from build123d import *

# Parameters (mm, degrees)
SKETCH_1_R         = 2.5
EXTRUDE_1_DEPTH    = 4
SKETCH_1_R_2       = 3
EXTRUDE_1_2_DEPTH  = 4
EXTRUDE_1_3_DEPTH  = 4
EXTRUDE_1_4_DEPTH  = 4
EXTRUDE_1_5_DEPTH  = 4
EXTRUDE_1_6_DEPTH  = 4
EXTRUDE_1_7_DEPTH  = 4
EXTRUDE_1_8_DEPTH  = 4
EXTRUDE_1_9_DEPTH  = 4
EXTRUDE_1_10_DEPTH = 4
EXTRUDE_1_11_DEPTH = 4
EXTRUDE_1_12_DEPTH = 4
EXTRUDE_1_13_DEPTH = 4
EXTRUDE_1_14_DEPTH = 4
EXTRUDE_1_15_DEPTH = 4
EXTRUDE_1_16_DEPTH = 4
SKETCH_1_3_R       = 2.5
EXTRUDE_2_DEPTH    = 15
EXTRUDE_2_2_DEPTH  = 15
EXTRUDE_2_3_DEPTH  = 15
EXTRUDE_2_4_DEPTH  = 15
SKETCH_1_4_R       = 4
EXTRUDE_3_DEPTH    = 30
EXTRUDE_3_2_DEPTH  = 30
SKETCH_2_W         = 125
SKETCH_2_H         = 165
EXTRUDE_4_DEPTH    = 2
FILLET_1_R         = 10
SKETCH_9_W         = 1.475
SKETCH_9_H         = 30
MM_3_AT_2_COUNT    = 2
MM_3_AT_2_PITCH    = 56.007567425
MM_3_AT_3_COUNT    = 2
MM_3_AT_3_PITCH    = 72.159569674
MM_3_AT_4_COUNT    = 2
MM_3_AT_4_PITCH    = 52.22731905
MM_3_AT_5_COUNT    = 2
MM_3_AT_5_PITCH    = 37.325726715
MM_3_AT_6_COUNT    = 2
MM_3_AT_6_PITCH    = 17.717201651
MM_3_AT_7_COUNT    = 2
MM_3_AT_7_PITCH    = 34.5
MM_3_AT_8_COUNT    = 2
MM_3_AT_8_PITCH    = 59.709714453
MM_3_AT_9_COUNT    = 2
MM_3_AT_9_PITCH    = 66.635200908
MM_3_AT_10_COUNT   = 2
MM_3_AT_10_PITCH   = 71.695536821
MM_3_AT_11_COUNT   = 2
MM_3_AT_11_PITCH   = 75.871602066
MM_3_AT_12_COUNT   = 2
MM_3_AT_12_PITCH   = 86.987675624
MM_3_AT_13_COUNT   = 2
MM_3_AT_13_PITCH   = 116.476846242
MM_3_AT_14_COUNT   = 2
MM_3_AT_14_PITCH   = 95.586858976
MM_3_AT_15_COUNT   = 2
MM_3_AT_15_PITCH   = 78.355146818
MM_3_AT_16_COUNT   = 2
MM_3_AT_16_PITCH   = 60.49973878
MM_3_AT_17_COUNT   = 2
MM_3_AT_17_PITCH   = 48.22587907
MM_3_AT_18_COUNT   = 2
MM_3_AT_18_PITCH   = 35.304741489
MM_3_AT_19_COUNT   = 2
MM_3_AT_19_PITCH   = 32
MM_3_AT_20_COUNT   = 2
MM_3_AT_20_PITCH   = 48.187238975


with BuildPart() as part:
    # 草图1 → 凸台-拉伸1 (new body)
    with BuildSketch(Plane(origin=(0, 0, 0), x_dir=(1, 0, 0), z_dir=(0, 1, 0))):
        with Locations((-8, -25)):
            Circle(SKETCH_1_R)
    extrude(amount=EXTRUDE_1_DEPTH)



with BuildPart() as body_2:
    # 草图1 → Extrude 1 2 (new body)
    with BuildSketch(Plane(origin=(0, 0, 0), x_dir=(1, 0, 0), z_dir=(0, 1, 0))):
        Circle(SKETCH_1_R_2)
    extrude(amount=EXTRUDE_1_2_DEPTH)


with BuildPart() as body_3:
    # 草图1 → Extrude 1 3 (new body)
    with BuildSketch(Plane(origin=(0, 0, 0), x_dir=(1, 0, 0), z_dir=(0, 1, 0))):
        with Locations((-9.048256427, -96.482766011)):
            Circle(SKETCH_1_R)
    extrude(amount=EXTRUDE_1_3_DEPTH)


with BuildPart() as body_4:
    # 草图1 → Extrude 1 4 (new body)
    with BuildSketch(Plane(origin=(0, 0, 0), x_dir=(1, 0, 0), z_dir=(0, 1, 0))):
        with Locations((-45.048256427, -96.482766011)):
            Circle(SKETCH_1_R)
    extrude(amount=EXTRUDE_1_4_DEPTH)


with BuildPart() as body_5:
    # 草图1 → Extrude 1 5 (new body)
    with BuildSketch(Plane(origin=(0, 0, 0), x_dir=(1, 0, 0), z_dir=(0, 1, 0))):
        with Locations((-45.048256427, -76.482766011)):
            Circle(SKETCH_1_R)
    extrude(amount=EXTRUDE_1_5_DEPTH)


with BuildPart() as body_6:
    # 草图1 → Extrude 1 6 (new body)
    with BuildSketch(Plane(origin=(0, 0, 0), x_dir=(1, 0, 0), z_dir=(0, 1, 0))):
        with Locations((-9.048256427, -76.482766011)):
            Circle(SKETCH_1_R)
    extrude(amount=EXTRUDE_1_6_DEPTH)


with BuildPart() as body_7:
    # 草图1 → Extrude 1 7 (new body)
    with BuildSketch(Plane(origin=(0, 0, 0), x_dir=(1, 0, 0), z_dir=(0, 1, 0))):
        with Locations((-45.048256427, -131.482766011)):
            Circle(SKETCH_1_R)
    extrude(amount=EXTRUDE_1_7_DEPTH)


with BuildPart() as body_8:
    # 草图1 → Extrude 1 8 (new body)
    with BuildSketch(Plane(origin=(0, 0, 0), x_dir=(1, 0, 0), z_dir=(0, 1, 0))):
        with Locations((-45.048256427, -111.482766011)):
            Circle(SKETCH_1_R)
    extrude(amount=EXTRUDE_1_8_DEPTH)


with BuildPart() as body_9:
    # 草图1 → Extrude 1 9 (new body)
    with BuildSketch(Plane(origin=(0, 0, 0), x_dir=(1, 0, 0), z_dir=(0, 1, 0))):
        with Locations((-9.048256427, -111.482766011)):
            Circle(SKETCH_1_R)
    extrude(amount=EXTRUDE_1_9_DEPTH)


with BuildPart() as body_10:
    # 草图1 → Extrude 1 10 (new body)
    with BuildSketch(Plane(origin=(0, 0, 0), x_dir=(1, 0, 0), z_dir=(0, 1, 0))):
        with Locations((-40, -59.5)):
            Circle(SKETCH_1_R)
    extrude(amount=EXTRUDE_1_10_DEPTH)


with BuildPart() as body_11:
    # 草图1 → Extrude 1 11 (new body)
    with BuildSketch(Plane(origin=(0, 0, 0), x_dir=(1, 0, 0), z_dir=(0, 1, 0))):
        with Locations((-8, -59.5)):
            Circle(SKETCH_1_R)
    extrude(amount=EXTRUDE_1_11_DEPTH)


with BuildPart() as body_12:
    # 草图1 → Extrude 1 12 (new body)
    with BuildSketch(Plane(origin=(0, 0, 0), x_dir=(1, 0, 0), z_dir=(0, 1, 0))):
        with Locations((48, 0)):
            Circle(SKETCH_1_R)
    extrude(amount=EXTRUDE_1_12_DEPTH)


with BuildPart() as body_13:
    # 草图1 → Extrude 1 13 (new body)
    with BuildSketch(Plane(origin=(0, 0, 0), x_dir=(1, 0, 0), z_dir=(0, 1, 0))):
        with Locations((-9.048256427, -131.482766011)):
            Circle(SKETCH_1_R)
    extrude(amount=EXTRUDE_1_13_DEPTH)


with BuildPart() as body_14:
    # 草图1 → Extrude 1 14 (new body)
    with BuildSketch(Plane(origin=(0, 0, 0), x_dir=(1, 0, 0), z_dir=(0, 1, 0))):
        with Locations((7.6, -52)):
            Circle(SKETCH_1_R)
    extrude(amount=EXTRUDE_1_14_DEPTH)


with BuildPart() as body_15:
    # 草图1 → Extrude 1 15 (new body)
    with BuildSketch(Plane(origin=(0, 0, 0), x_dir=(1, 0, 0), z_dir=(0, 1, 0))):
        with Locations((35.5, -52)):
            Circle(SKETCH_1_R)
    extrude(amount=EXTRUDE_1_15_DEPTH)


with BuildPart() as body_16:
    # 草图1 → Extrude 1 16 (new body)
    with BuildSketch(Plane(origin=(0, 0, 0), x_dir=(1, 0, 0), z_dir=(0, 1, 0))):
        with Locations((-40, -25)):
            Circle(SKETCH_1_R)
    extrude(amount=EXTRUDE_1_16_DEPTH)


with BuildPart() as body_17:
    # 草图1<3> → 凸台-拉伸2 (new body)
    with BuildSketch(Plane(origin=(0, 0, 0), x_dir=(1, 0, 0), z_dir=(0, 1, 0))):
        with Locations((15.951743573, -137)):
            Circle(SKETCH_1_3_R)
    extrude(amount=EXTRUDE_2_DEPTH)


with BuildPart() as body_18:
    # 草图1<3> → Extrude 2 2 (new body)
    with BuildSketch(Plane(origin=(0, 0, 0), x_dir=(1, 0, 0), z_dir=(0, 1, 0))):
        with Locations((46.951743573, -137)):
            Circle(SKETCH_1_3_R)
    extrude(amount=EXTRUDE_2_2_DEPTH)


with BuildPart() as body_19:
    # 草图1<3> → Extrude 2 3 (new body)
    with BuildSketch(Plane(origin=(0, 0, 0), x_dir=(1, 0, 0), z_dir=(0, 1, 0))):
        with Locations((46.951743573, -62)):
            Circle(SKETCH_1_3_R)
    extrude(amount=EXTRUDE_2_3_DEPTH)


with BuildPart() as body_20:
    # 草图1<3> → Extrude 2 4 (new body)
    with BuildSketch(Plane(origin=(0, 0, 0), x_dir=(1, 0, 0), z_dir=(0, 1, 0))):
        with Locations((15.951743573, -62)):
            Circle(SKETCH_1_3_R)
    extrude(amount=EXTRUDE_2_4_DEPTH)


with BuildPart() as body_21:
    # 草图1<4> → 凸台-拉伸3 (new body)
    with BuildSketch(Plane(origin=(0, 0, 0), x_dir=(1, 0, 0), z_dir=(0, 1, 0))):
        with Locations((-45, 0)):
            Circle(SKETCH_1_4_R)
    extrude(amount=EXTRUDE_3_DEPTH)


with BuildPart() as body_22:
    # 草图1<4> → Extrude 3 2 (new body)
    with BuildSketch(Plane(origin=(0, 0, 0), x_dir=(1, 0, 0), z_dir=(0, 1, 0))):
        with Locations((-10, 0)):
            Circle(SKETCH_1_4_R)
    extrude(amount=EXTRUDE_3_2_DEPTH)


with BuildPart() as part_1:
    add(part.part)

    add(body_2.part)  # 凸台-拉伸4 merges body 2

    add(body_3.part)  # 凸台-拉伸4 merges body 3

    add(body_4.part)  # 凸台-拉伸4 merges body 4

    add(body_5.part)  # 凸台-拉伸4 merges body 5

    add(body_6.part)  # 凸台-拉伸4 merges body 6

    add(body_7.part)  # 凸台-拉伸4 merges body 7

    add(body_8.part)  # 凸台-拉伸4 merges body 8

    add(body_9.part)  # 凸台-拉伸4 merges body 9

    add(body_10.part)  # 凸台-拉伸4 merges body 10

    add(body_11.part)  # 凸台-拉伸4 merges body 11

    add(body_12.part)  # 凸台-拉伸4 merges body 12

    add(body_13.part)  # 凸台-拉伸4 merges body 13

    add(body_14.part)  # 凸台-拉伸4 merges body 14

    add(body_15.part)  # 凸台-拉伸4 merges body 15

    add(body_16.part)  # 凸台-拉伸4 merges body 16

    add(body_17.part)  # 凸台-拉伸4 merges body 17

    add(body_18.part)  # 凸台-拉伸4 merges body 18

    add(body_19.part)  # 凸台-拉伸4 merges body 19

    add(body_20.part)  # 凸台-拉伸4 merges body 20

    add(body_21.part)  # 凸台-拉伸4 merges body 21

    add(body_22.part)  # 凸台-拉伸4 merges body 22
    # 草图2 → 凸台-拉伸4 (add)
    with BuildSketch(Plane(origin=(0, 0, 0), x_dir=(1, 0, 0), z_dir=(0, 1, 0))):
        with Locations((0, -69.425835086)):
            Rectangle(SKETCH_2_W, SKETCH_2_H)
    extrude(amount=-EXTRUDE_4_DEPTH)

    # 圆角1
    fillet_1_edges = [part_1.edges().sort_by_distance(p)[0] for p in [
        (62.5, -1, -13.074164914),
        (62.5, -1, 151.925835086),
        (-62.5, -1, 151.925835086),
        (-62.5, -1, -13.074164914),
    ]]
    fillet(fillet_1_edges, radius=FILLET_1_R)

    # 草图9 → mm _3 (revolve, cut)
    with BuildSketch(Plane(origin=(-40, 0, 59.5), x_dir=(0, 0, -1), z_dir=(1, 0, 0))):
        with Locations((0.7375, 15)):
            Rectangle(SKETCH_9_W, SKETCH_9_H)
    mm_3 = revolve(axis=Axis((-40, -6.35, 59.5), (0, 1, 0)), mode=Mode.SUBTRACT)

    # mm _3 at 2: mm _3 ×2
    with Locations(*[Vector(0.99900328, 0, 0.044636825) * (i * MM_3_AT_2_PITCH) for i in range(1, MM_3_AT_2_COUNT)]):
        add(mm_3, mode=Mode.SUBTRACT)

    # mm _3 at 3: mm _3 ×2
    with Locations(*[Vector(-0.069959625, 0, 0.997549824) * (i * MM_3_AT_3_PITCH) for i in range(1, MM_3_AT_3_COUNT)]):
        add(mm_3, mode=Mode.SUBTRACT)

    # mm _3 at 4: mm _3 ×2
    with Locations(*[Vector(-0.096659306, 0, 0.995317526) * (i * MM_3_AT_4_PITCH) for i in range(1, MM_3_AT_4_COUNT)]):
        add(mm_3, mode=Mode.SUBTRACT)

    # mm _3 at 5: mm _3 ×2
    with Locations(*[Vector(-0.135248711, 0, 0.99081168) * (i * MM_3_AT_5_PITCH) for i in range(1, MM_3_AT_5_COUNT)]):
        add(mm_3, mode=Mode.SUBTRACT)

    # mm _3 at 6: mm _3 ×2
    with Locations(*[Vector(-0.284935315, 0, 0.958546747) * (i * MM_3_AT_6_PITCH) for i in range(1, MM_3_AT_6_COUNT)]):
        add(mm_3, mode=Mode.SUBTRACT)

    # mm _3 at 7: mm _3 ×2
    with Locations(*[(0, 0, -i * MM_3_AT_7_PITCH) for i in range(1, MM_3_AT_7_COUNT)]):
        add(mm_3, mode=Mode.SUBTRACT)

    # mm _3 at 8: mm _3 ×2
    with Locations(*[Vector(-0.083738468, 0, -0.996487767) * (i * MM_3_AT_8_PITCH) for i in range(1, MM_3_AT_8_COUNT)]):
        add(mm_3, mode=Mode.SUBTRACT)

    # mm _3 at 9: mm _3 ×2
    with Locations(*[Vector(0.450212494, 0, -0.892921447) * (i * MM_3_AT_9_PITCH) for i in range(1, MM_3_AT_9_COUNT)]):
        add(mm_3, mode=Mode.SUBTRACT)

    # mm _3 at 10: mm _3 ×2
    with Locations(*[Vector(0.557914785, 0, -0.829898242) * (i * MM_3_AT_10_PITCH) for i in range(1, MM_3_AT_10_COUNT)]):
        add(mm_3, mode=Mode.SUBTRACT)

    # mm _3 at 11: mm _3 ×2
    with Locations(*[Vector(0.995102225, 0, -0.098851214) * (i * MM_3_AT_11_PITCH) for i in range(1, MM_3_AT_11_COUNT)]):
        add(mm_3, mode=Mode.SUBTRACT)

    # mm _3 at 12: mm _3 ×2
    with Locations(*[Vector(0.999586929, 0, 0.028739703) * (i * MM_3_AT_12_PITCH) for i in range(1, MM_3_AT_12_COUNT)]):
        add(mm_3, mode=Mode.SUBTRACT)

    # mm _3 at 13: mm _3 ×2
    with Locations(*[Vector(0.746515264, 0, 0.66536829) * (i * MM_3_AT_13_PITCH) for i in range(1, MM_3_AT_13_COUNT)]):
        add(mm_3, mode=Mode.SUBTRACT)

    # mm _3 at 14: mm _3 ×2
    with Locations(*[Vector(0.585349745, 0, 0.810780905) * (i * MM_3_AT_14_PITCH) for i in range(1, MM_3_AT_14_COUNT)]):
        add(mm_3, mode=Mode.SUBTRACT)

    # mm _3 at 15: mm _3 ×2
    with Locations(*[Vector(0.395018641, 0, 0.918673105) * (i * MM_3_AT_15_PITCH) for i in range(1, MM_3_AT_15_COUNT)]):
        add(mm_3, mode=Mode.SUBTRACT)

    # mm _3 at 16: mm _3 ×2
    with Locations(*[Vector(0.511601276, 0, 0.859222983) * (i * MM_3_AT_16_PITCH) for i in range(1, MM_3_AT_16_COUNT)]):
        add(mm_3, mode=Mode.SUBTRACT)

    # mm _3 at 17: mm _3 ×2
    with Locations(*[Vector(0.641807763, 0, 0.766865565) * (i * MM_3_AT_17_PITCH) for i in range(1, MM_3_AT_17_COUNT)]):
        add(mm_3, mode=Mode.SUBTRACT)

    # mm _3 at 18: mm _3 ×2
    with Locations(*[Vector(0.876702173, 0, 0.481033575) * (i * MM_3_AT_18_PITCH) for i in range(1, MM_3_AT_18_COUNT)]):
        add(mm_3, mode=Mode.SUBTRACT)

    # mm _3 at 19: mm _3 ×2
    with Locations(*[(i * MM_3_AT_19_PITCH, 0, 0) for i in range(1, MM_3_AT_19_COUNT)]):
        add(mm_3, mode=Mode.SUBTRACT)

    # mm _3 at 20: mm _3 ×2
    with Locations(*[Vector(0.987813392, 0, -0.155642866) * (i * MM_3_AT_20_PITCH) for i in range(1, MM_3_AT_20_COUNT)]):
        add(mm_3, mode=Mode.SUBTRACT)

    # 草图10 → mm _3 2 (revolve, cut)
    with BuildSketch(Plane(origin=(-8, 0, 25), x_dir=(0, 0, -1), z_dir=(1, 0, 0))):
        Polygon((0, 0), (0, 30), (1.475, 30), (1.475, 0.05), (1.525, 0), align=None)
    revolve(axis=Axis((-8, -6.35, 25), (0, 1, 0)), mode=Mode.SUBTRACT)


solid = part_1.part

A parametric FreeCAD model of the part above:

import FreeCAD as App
import Part
import Sketcher
Q = App.Units.Quantity


def edges_at(feature, points):
    """Names of the edges that pass closest to the given points."""
    edges = feature.Shape.Edges
    near = lambda p: min(range(len(edges)), key=lambda i: edges[i].distToShape(Part.Vertex(*p))[0])
    return sorted({f"Edge{near(p) + 1}" for p in points})

doc = App.newDocument("Part")
body = doc.addObject("PartDesign::Body", "Body")

# Sketch on XZ plane
sketch1 = body.newObject("Sketcher::SketchObject", "Sketch")
sketch1.AttachmentSupport = (doc.getObject("XZ_Plane"), [""])
sketch1.MapMode = "FlatFace"
sketch1.addGeometry(Part.Circle(App.Vector(-8, 25, 0), App.Vector(0, 0, 1), 2.5), False)
sketch1.addConstraint([
    Sketcher.Constraint("Diameter", 0, 5.0),
    Sketcher.Constraint("DistanceX", 0, 3, -1, 1, 8.0),
    Sketcher.Constraint("DistanceY", -1, 1, 0, 3, 25.0),
])
pad1 = body.newObject("PartDesign::Pad", "Pad")
pad1.Profile = sketch1
pad1.Length = 4
pad1.Reversed = True
body2 = doc.addObject("PartDesign::Body", "Body001")

# Sketch on XZ plane
sketch2 = body2.newObject("Sketcher::SketchObject", "Sketch001")
sketch2.AttachmentSupport = (doc.getObject("XZ_Plane001"), [""])
sketch2.MapMode = "FlatFace"
sketch2.addGeometry(Part.Circle(App.Vector(0, 0, 0), App.Vector(0, 0, 1), 3), False)
sketch2.addConstraint([
    Sketcher.Constraint("Coincident", 0, 3, -1, 1),
    Sketcher.Constraint("Diameter", 0, 6.0),
])
pad2 = body2.newObject("PartDesign::Pad", "Pad001")
pad2.Profile = sketch2
pad2.Length = 4
pad2.Reversed = True
body3 = doc.addObject("PartDesign::Body", "Body002")

# Sketch on XZ plane
sketch3 = body3.newObject("Sketcher::SketchObject", "Sketch002")
sketch3.AttachmentSupport = (doc.getObject("XZ_Plane002"), [""])
sketch3.MapMode = "FlatFace"
sketch3.addGeometry(Part.Circle(App.Vector(-9.048256, 96.482766, 0), App.Vector(0, 0, 1), 2.5), False)
sketch3.addConstraint([
    Sketcher.Constraint("Diameter", 0, 5.0),
    Sketcher.Constraint("DistanceX", 0, 3, -1, 1, 9.048256),
    Sketcher.Constraint("DistanceY", -1, 1, 0, 3, 96.482766),
])
pad3 = body3.newObject("PartDesign::Pad", "Pad002")
pad3.Profile = sketch3
pad3.Length = 4
pad3.Reversed = True
body4 = doc.addObject("PartDesign::Body", "Body003")

# Sketch on XZ plane
sketch4 = body4.newObject("Sketcher::SketchObject", "Sketch003")
sketch4.AttachmentSupport = (doc.getObject("XZ_Plane003"), [""])
sketch4.MapMode = "FlatFace"
sketch4.addGeometry(Part.Circle(App.Vector(-45.048256, 96.482766, 0), App.Vector(0, 0, 1), 2.5), False)
sketch4.addConstraint([
    Sketcher.Constraint("Diameter", 0, 5.0),
    Sketcher.Constraint("DistanceX", 0, 3, -1, 1, 45.048256),
    Sketcher.Constraint("DistanceY", -1, 1, 0, 3, 96.482766),
])
pad4 = body4.newObject("PartDesign::Pad", "Pad003")
pad4.Profile = sketch4
pad4.Length = 4
pad4.Reversed = True
body5 = doc.addObject("PartDesign::Body", "Body004")

# Sketch on XZ plane
sketch5 = body5.newObject("Sketcher::SketchObject", "Sketch004")
sketch5.AttachmentSupport = (doc.getObject("XZ_Plane004"), [""])
sketch5.MapMode = "FlatFace"
sketch5.addGeometry(Part.Circle(App.Vector(-45.048256, 76.482766, 0), App.Vector(0, 0, 1), 2.5), False)
sketch5.addConstraint([
    Sketcher.Constraint("Diameter", 0, 5.0),
    Sketcher.Constraint("DistanceX", 0, 3, -1, 1, 45.048256),
    Sketcher.Constraint("DistanceY", -1, 1, 0, 3, 76.482766),
])
pad5 = body5.newObject("PartDesign::Pad", "Pad004")
pad5.Profile = sketch5
pad5.Length = 4
pad5.Reversed = True
body6 = doc.addObject("PartDesign::Body", "Body005")

# Sketch on XZ plane
sketch6 = body6.newObject("Sketcher::SketchObject", "Sketch005")
sketch6.AttachmentSupport = (doc.getObject("XZ_Plane005"), [""])
sketch6.MapMode = "FlatFace"
sketch6.addGeometry(Part.Circle(App.Vector(-9.048256, 76.482766, 0), App.Vector(0, 0, 1), 2.5), False)
sketch6.addConstraint([
    Sketcher.Constraint("Diameter", 0, 5.0),
    Sketcher.Constraint("DistanceX", 0, 3, -1, 1, 9.048256),
    Sketcher.Constraint("DistanceY", -1, 1, 0, 3, 76.482766),
])
pad6 = body6.newObject("PartDesign::Pad", "Pad005")
pad6.Profile = sketch6
pad6.Length = 4
pad6.Reversed = True
body7 = doc.addObject("PartDesign::Body", "Body006")

# Sketch on XZ plane
sketch7 = body7.newObject("Sketcher::SketchObject", "Sketch006")
sketch7.AttachmentSupport = (doc.getObject("XZ_Plane006"), [""])
sketch7.MapMode = "FlatFace"
sketch7.addGeometry(Part.Circle(App.Vector(-45.048256, 131.482766, 0), App.Vector(0, 0, 1), 2.5), False)
sketch7.addConstraint([
    Sketcher.Constraint("Diameter", 0, 5.0),
    Sketcher.Constraint("DistanceX", 0, 3, -1, 1, 45.048256),
    Sketcher.Constraint("DistanceY", -1, 1, 0, 3, 131.482766),
])
pad7 = body7.newObject("PartDesign::Pad", "Pad006")
pad7.Profile = sketch7
pad7.Length = 4
pad7.Reversed = True
body8 = doc.addObject("PartDesign::Body", "Body007")

# Sketch on XZ plane
sketch8 = body8.newObject("Sketcher::SketchObject", "Sketch007")
sketch8.AttachmentSupport = (doc.getObject("XZ_Plane007"), [""])
sketch8.MapMode = "FlatFace"
sketch8.addGeometry(Part.Circle(App.Vector(-45.048256, 111.482766, 0), App.Vector(0, 0, 1), 2.5), False)
sketch8.addConstraint([
    Sketcher.Constraint("Diameter", 0, 5.0),
    Sketcher.Constraint("DistanceX", 0, 3, -1, 1, 45.048256),
    Sketcher.Constraint("DistanceY", -1, 1, 0, 3, 111.482766),
])
pad8 = body8.newObject("PartDesign::Pad", "Pad007")
pad8.Profile = sketch8
pad8.Length = 4
pad8.Reversed = True
body9 = doc.addObject("PartDesign::Body", "Body008")

# Sketch on XZ plane
sketch9 = body9.newObject("Sketcher::SketchObject", "Sketch008")
sketch9.AttachmentSupport = (doc.getObject("XZ_Plane008"), [""])
sketch9.MapMode = "FlatFace"
sketch9.addGeometry(Part.Circle(App.Vector(-9.048256, 111.482766, 0), App.Vector(0, 0, 1), 2.5), False)
sketch9.addConstraint([
    Sketcher.Constraint("Diameter", 0, 5.0),
    Sketcher.Constraint("DistanceX", 0, 3, -1, 1, 9.048256),
    Sketcher.Constraint("DistanceY", -1, 1, 0, 3, 111.482766),
])
pad9 = body9.newObject("PartDesign::Pad", "Pad008")
pad9.Profile = sketch9
pad9.Length = 4
pad9.Reversed = True
body10 = doc.addObject("PartDesign::Body", "Body009")

# Sketch on XZ plane
sketch10 = body10.newObject("Sketcher::SketchObject", "Sketch009")
sketch10.AttachmentSupport = (doc.getObject("XZ_Plane009"), [""])
sketch10.MapMode = "FlatFace"
sketch10.addGeometry(Part.Circle(App.Vector(-40, 59.5, 0), App.Vector(0, 0, 1), 2.5), False)
sketch10.addConstraint([
    Sketcher.Constraint("Diameter", 0, 5.0),
    Sketcher.Constraint("DistanceX", 0, 3, -1, 1, 40.0),
    Sketcher.Constraint("DistanceY", -1, 1, 0, 3, 59.5),
])
pad10 = body10.newObject("PartDesign::Pad", "Pad009")
pad10.Profile = sketch10
pad10.Length = 4
pad10.Reversed = True
body11 = doc.addObject("PartDesign::Body", "Body010")

# Sketch on XZ plane
sketch11 = body11.newObject("Sketcher::SketchObject", "Sketch010")
sketch11.AttachmentSupport = (doc.getObject("XZ_Plane010"), [""])
sketch11.MapMode = "FlatFace"
sketch11.addGeometry(Part.Circle(App.Vector(-8, 59.5, 0), App.Vector(0, 0, 1), 2.5), False)
sketch11.addConstraint([
    Sketcher.Constraint("Diameter", 0, 5.0),
    Sketcher.Constraint("DistanceX", 0, 3, -1, 1, 8.0),
    Sketcher.Constraint("DistanceY", -1, 1, 0, 3, 59.5),
])
pad11 = body11.newObject("PartDesign::Pad", "Pad010")
pad11.Profile = sketch11
pad11.Length = 4
pad11.Reversed = True
body12 = doc.addObject("PartDesign::Body", "Body011")

# Sketch on XZ plane
sketch12 = body12.newObject("Sketcher::SketchObject", "Sketch011")
sketch12.AttachmentSupport = (doc.getObject("XZ_Plane011"), [""])
sketch12.MapMode = "FlatFace"
sketch12.addGeometry(Part.Circle(App.Vector(48, 0, 0), App.Vector(0, 0, 1), 2.5), False)
sketch12.addConstraint([
    Sketcher.Constraint("PointOnObject", 0, 3, -1),
    Sketcher.Constraint("Diameter", 0, 5.0),
    Sketcher.Constraint("DistanceX", -1, 1, 0, 3, 48.0),
])
pad12 = body12.newObject("PartDesign::Pad", "Pad011")
pad12.Profile = sketch12
pad12.Length = 4
pad12.Reversed = True
body13 = doc.addObject("PartDesign::Body", "Body012")

# Sketch on XZ plane
sketch13 = body13.newObject("Sketcher::SketchObject", "Sketch012")
sketch13.AttachmentSupport = (doc.getObject("XZ_Plane012"), [""])
sketch13.MapMode = "FlatFace"
sketch13.addGeometry(Part.Circle(App.Vector(-9.048256, 131.482766, 0), App.Vector(0, 0, 1), 2.5), False)
sketch13.addConstraint([
    Sketcher.Constraint("Diameter", 0, 5.0),
    Sketcher.Constraint("DistanceX", 0, 3, -1, 1, 9.048256),
    Sketcher.Constraint("DistanceY", -1, 1, 0, 3, 131.482766),
])
pad13 = body13.newObject("PartDesign::Pad", "Pad012")
pad13.Profile = sketch13
pad13.Length = 4
pad13.Reversed = True
body14 = doc.addObject("PartDesign::Body", "Body013")

# Sketch on XZ plane
sketch14 = body14.newObject("Sketcher::SketchObject", "Sketch013")
sketch14.AttachmentSupport = (doc.getObject("XZ_Plane013"), [""])
sketch14.MapMode = "FlatFace"
sketch14.addGeometry(Part.Circle(App.Vector(7.6, 52, 0), App.Vector(0, 0, 1), 2.5), False)
sketch14.addConstraint([
    Sketcher.Constraint("Diameter", 0, 5.0),
    Sketcher.Constraint("DistanceY", -1, 1, 0, 3, 52.0),
    Sketcher.Constraint("DistanceX", -1, 1, 0, 3, 7.6),
])
pad14 = body14.newObject("PartDesign::Pad", "Pad013")
pad14.Profile = sketch14
pad14.Length = 4
pad14.Reversed = True
body15 = doc.addObject("PartDesign::Body", "Body014")

# Sketch on XZ plane
sketch15 = body15.newObject("Sketcher::SketchObject", "Sketch014")
sketch15.AttachmentSupport = (doc.getObject("XZ_Plane014"), [""])
sketch15.MapMode = "FlatFace"
sketch15.addGeometry(Part.Circle(App.Vector(35.5, 52, 0), App.Vector(0, 0, 1), 2.5), False)
sketch15.addConstraint([
    Sketcher.Constraint("Diameter", 0, 5.0),
    Sketcher.Constraint("DistanceY", -1, 1, 0, 3, 52.0),
    Sketcher.Constraint("DistanceX", -1, 1, 0, 3, 35.5),
])
pad15 = body15.newObject("PartDesign::Pad", "Pad014")
pad15.Profile = sketch15
pad15.Length = 4
pad15.Reversed = True
body16 = doc.addObject("PartDesign::Body", "Body015")

# Sketch on XZ plane
sketch16 = body16.newObject("Sketcher::SketchObject", "Sketch015")
sketch16.AttachmentSupport = (doc.getObject("XZ_Plane015"), [""])
sketch16.MapMode = "FlatFace"
sketch16.addGeometry(Part.Circle(App.Vector(-40, 25, 0), App.Vector(0, 0, 1), 2.5), False)
sketch16.addConstraint([
    Sketcher.Constraint("Diameter", 0, 5.0),
    Sketcher.Constraint("DistanceX", 0, 3, -1, 1, 40.0),
    Sketcher.Constraint("DistanceY", -1, 1, 0, 3, 25.0),
])
pad16 = body16.newObject("PartDesign::Pad", "Pad015")
pad16.Profile = sketch16
pad16.Length = 4
pad16.Reversed = True
body17 = doc.addObject("PartDesign::Body", "Body016")

# Sketch on XZ plane
sketch17 = body17.newObject("Sketcher::SketchObject", "Sketch016")
sketch17.AttachmentSupport = (doc.getObject("XZ_Plane016"), [""])
sketch17.MapMode = "FlatFace"
sketch17.addGeometry(Part.Circle(App.Vector(15.951744, 137, 0), App.Vector(0, 0, 1), 2.5), False)
sketch17.addConstraint([
    Sketcher.Constraint("Diameter", 0, 5.0),
    Sketcher.Constraint("DistanceY", -1, 1, 0, 3, 137.0),
    Sketcher.Constraint("DistanceX", -1, 1, 0, 3, 15.951744),
])
pad17 = body17.newObject("PartDesign::Pad", "Pad016")
pad17.Profile = sketch17
pad17.Length = 15
pad17.Reversed = True
body18 = doc.addObject("PartDesign::Body", "Body017")

# Sketch on XZ plane
sketch18 = body18.newObject("Sketcher::SketchObject", "Sketch017")
sketch18.AttachmentSupport = (doc.getObject("XZ_Plane017"), [""])
sketch18.MapMode = "FlatFace"
sketch18.addGeometry(Part.Circle(App.Vector(46.951744, 137, 0), App.Vector(0, 0, 1), 2.5), False)
sketch18.addConstraint([
    Sketcher.Constraint("Diameter", 0, 5.0),
    Sketcher.Constraint("DistanceY", -1, 1, 0, 3, 137.0),
    Sketcher.Constraint("DistanceX", -1, 1, 0, 3, 46.951744),
])
pad18 = body18.newObject("PartDesign::Pad", "Pad017")
pad18.Profile = sketch18
pad18.Length = 15
pad18.Reversed = True
body19 = doc.addObject("PartDesign::Body", "Body018")

# Sketch on XZ plane
sketch19 = body19.newObject("Sketcher::SketchObject", "Sketch018")
sketch19.AttachmentSupport = (doc.getObject("XZ_Plane018"), [""])
sketch19.MapMode = "FlatFace"
sketch19.addGeometry(Part.Circle(App.Vector(46.951744, 62, 0), App.Vector(0, 0, 1), 2.5), False)
sketch19.addConstraint([
    Sketcher.Constraint("Diameter", 0, 5.0),
    Sketcher.Constraint("DistanceY", -1, 1, 0, 3, 62.0),
    Sketcher.Constraint("DistanceX", -1, 1, 0, 3, 46.951744),
])
pad19 = body19.newObject("PartDesign::Pad", "Pad018")
pad19.Profile = sketch19
pad19.Length = 15
pad19.Reversed = True
body20 = doc.addObject("PartDesign::Body", "Body019")

# Sketch on XZ plane
sketch20 = body20.newObject("Sketcher::SketchObject", "Sketch019")
sketch20.AttachmentSupport = (doc.getObject("XZ_Plane019"), [""])
sketch20.MapMode = "FlatFace"
sketch20.addGeometry(Part.Circle(App.Vector(15.951744, 62, 0), App.Vector(0, 0, 1), 2.5), False)
sketch20.addConstraint([
    Sketcher.Constraint("Diameter", 0, 5.0),
    Sketcher.Constraint("DistanceY", -1, 1, 0, 3, 62.0),
    Sketcher.Constraint("DistanceX", -1, 1, 0, 3, 15.951744),
])
pad20 = body20.newObject("PartDesign::Pad", "Pad019")
pad20.Profile = sketch20
pad20.Length = 15
pad20.Reversed = True
body21 = doc.addObject("PartDesign::Body", "Body020")

# Sketch on XZ plane
sketch21 = body21.newObject("Sketcher::SketchObject", "Sketch020")
sketch21.AttachmentSupport = (doc.getObject("XZ_Plane020"), [""])
sketch21.MapMode = "FlatFace"
sketch21.addGeometry(Part.Circle(App.Vector(-45, 0, 0), App.Vector(0, 0, 1), 4), False)
sketch21.addConstraint([
    Sketcher.Constraint("PointOnObject", 0, 3, -1),
    Sketcher.Constraint("Diameter", 0, 8.0),
    Sketcher.Constraint("DistanceX", 0, 3, -1, 1, 45.0),
])
pad21 = body21.newObject("PartDesign::Pad", "Pad020")
pad21.Profile = sketch21
pad21.Length = 30
pad21.Reversed = True
body22 = doc.addObject("PartDesign::Body", "Body021")

# Sketch on XZ plane
sketch22 = body22.newObject("Sketcher::SketchObject", "Sketch021")
sketch22.AttachmentSupport = (doc.getObject("XZ_Plane021"), [""])
sketch22.MapMode = "FlatFace"
sketch22.addGeometry(Part.Circle(App.Vector(-10, 0, 0), App.Vector(0, 0, 1), 4), False)
sketch22.addConstraint([
    Sketcher.Constraint("PointOnObject", 0, 3, -1),
    Sketcher.Constraint("Diameter", 0, 8.0),
    Sketcher.Constraint("DistanceX", 0, 3, -1, 1, 10.0),
])
pad22 = body22.newObject("PartDesign::Pad", "Pad021")
pad22.Profile = sketch22
pad22.Length = 30
pad22.Reversed = True
body.AllowCompound = True
doc.recompute()

boolean = body.newObject("PartDesign::Boolean", "Boolean")
boolean.Type = "Fuse"
boolean.addObjects([body2])
doc.recompute()

boolean2 = body.newObject("PartDesign::Boolean", "Boolean001")
boolean2.Type = "Fuse"
boolean2.addObjects([body3])
doc.recompute()

boolean3 = body.newObject("PartDesign::Boolean", "Boolean002")
boolean3.Type = "Fuse"
boolean3.addObjects([body4])
doc.recompute()

boolean4 = body.newObject("PartDesign::Boolean", "Boolean003")
boolean4.Type = "Fuse"
boolean4.addObjects([body5])
doc.recompute()

boolean5 = body.newObject("PartDesign::Boolean", "Boolean004")
boolean5.Type = "Fuse"
boolean5.addObjects([body6])
doc.recompute()

boolean6 = body.newObject("PartDesign::Boolean", "Boolean005")
boolean6.Type = "Fuse"
boolean6.addObjects([body7])
doc.recompute()

boolean7 = body.newObject("PartDesign::Boolean", "Boolean006")
boolean7.Type = "Fuse"
boolean7.addObjects([body8])
doc.recompute()

boolean8 = body.newObject("PartDesign::Boolean", "Boolean007")
boolean8.Type = "Fuse"
boolean8.addObjects([body9])
doc.recompute()

boolean9 = body.newObject("PartDesign::Boolean", "Boolean008")
boolean9.Type = "Fuse"
boolean9.addObjects([body10])
doc.recompute()

boolean10 = body.newObject("PartDesign::Boolean", "Boolean009")
boolean10.Type = "Fuse"
boolean10.addObjects([body11])
doc.recompute()

boolean11 = body.newObject("PartDesign::Boolean", "Boolean010")
boolean11.Type = "Fuse"
boolean11.addObjects([body12])
doc.recompute()

boolean12 = body.newObject("PartDesign::Boolean", "Boolean011")
boolean12.Type = "Fuse"
boolean12.addObjects([body13])
doc.recompute()

boolean13 = body.newObject("PartDesign::Boolean", "Boolean012")
boolean13.Type = "Fuse"
boolean13.addObjects([body14])
doc.recompute()

boolean14 = body.newObject("PartDesign::Boolean", "Boolean013")
boolean14.Type = "Fuse"
boolean14.addObjects([body15])
doc.recompute()

boolean15 = body.newObject("PartDesign::Boolean", "Boolean014")
boolean15.Type = "Fuse"
boolean15.addObjects([body16])
doc.recompute()

boolean16 = body.newObject("PartDesign::Boolean", "Boolean015")
boolean16.Type = "Fuse"
boolean16.addObjects([body17])
doc.recompute()

boolean17 = body.newObject("PartDesign::Boolean", "Boolean016")
boolean17.Type = "Fuse"
boolean17.addObjects([body18])
doc.recompute()

boolean18 = body.newObject("PartDesign::Boolean", "Boolean017")
boolean18.Type = "Fuse"
boolean18.addObjects([body19])
doc.recompute()

boolean19 = body.newObject("PartDesign::Boolean", "Boolean018")
boolean19.Type = "Fuse"
boolean19.addObjects([body20])
doc.recompute()

boolean20 = body.newObject("PartDesign::Boolean", "Boolean019")
boolean20.Type = "Fuse"
boolean20.addObjects([body21])
doc.recompute()

boolean21 = body.newObject("PartDesign::Boolean", "Boolean020")
boolean21.Type = "Fuse"
boolean21.addObjects([body22])

# Sketch on XZ plane
sketch23 = body.newObject("Sketcher::SketchObject", "Sketch022")
sketch23.AttachmentSupport = (doc.getObject("XZ_Plane"), [""])
sketch23.MapMode = "FlatFace"
sketch23.addGeometry([
    Part.LineSegment(App.Vector(-62.5, -13.074165, 0), App.Vector(-62.5, 151.925835, 0)),
    Part.LineSegment(App.Vector(-62.5, 151.925835, 0), App.Vector(62.5, 151.925835, 0)),
    Part.LineSegment(App.Vector(62.5, 151.925835, 0), App.Vector(62.5, -13.074165, 0)),
    Part.LineSegment(App.Vector(62.5, -13.074165, 0), App.Vector(-62.5, -13.074165, 0)),
], False)
sketch23.addConstraint([
    Sketcher.Constraint("Coincident", 0, 2, 1, 1),
    Sketcher.Constraint("Coincident", 1, 2, 2, 1),
    Sketcher.Constraint("Coincident", 2, 2, 3, 1),
    Sketcher.Constraint("Coincident", 3, 2, 0, 1),
    Sketcher.Constraint("Vertical", 0),
    Sketcher.Constraint("Horizontal", 1),
    Sketcher.Constraint("Vertical", 2),
    Sketcher.Constraint("Horizontal", 3),
    Sketcher.Constraint("DistanceX", 1, 1, 1, 2, 125.0),
    Sketcher.Constraint("DistanceY", 0, 1, 0, 2, 165.0),
    Sketcher.Constraint("DistanceX", 0, 2, -1, 1, 62.5),
    Sketcher.Constraint("DistanceY", -1, 1, 0, 2, 151.925835),
])
pad23 = body.newObject("PartDesign::Pad", "Pad022")
pad23.Profile = sketch23
pad23.Length = 2
doc.recompute()

fillet = body.newObject("PartDesign::Fillet", "Fillet")
fillet.Base = (pad23, edges_at(pad23, [
    (62.5, -1, -13.074),
    (62.5, -1, 151.926),
    (-62.5, -1, 151.926),
    (-62.5, -1, -13.074),
]))
fillet.Radius = 10

# Sketch on YZ plane
sketch24 = body.newObject("Sketcher::SketchObject", "Sketch023")
sketch24.AttachmentSupport = (doc.getObject("YZ_Plane"), [""])
sketch24.MapMode = "FlatFace"
sketch24.AttachmentOffset = App.Placement(App.Vector(0, 0, -40), App.Rotation())
sketch24.addGeometry([
    Part.LineSegment(App.Vector(30, 59.5, 0), App.Vector(0, 59.5, 0)),
    Part.LineSegment(App.Vector(0, 59.5, 0), App.Vector(0, 58.025, 0)),
    Part.LineSegment(App.Vector(0, 58.025, 0), App.Vector(30, 58.025, 0)),
    Part.LineSegment(App.Vector(30, 58.025, 0), App.Vector(30, 59.5, 0)),
], False)
sketch24.addGeometry(Part.LineSegment(App.Vector(0, 59.5, 0), App.Vector(30, 59.5, 0)), True)  # axis
sketch24.addConstraint([
    Sketcher.Constraint("Coincident", 0, 2, 1, 1),
    Sketcher.Constraint("Coincident", 1, 2, 2, 1),
    Sketcher.Constraint("Coincident", 2, 2, 3, 1),
    Sketcher.Constraint("Coincident", 3, 2, 0, 1),
    Sketcher.Constraint("Horizontal", 0),
    Sketcher.Constraint("Vertical", 1),
    Sketcher.Constraint("Horizontal", 2),
    Sketcher.Constraint("Vertical", 3),
    Sketcher.Constraint("Horizontal", 4),
    Sketcher.Constraint("Coincident", 4, 1, 0, 2),
    Sketcher.Constraint("PointOnObject", 0, 2, -2),
    Sketcher.Constraint("Vertical", 2, 2, 4, 2),
    Sketcher.Constraint("DistanceX", 0, 2, 0, 1, 30.0),
    Sketcher.Constraint("DistanceY", -1, 1, 0, 2, 59.5),
    Sketcher.Constraint("DistanceY", 1, 2, 1, 1, 1.475),
])
groove = body.newObject("PartDesign::Groove", "Groove")
groove.Profile = sketch24
groove.ReferenceAxis = (sketch24, ["Axis0"])
groove.Angle = 360
doc.recompute()

datumline = body.newObject("PartDesign::Line", "DatumLine")
datumline.Placement = App.Placement(App.Vector(0, 0, 0), App.Rotation(App.Vector(0, 0, 1), App.Vector(0.99900328, 0, 0.044636825)))
linearpattern = body.newObject("PartDesign::LinearPattern", "LinearPattern")
linearpattern.Originals = [groove]
linearpattern.Direction = (datumline, [""])
linearpattern.Mode = "offset"
linearpattern.Offset = 56.007567
linearpattern.Occurrences = 2
body.Tip = linearpattern
doc.recompute()

datumline2 = body.newObject("PartDesign::Line", "DatumLine001")
datumline2.Placement = App.Placement(App.Vector(0, 0, 0), App.Rotation(App.Vector(0, 0, 1), App.Vector(-0.069959625, 0, 0.997549824)))
linearpattern2 = body.newObject("PartDesign::LinearPattern", "LinearPattern001")
linearpattern2.Originals = [groove]
linearpattern2.Direction = (datumline2, [""])
linearpattern2.Mode = "offset"
linearpattern2.Offset = 72.15957
linearpattern2.Occurrences = 2
body.Tip = linearpattern2
doc.recompute()

datumline3 = body.newObject("PartDesign::Line", "DatumLine002")
datumline3.Placement = App.Placement(App.Vector(0, 0, 0), App.Rotation(App.Vector(0, 0, 1), App.Vector(-0.096659306, 0, 0.995317526)))
linearpattern3 = body.newObject("PartDesign::LinearPattern", "LinearPattern002")
linearpattern3.Originals = [groove]
linearpattern3.Direction = (datumline3, [""])
linearpattern3.Mode = "offset"
linearpattern3.Offset = 52.227319
linearpattern3.Occurrences = 2
body.Tip = linearpattern3
doc.recompute()

datumline4 = body.newObject("PartDesign::Line", "DatumLine003")
datumline4.Placement = App.Placement(App.Vector(0, 0, 0), App.Rotation(App.Vector(0, 0, 1), App.Vector(-0.135248711, 0, 0.99081168)))
linearpattern4 = body.newObject("PartDesign::LinearPattern", "LinearPattern003")
linearpattern4.Originals = [groove]
linearpattern4.Direction = (datumline4, [""])
linearpattern4.Mode = "offset"
linearpattern4.Offset = 37.325727
linearpattern4.Occurrences = 2
body.Tip = linearpattern4
doc.recompute()

datumline5 = body.newObject("PartDesign::Line", "DatumLine004")
datumline5.Placement = App.Placement(App.Vector(0, 0, 0), App.Rotation(App.Vector(0, 0, 1), App.Vector(-0.284935315, 0, 0.958546747)))
linearpattern5 = body.newObject("PartDesign::LinearPattern", "LinearPattern004")
linearpattern5.Originals = [groove]
linearpattern5.Direction = (datumline5, [""])
linearpattern5.Mode = "offset"
linearpattern5.Offset = 17.717202
linearpattern5.Occurrences = 2
body.Tip = linearpattern5
doc.recompute()

linearpattern6 = body.newObject("PartDesign::LinearPattern", "LinearPattern005")
linearpattern6.Originals = [groove]
linearpattern6.Direction = (doc.getObject("Z_Axis"), [""])
linearpattern6.Mode = "offset"
linearpattern6.Offset = 34.5
linearpattern6.Occurrences = 2
linearpattern6.Reversed = True
body.Tip = linearpattern6
doc.recompute()

datumline6 = body.newObject("PartDesign::Line", "DatumLine005")
datumline6.Placement = App.Placement(App.Vector(0, 0, 0), App.Rotation(App.Vector(0, 0, 1), App.Vector(-0.083738468, 0, -0.996487767)))
linearpattern7 = body.newObject("PartDesign::LinearPattern", "LinearPattern006")
linearpattern7.Originals = [groove]
linearpattern7.Direction = (datumline6, [""])
linearpattern7.Mode = "offset"
linearpattern7.Offset = 59.709714
linearpattern7.Occurrences = 2
body.Tip = linearpattern7
doc.recompute()

datumline7 = body.newObject("PartDesign::Line", "DatumLine006")
datumline7.Placement = App.Placement(App.Vector(0, 0, 0), App.Rotation(App.Vector(0, 0, 1), App.Vector(0.450212494, 0, -0.892921447)))
linearpattern8 = body.newObject("PartDesign::LinearPattern", "LinearPattern007")
linearpattern8.Originals = [groove]
linearpattern8.Direction = (datumline7, [""])
linearpattern8.Mode = "offset"
linearpattern8.Offset = 66.635201
linearpattern8.Occurrences = 2
body.Tip = linearpattern8
doc.recompute()

datumline8 = body.newObject("PartDesign::Line", "DatumLine007")
datumline8.Placement = App.Placement(App.Vector(0, 0, 0), App.Rotation(App.Vector(0, 0, 1), App.Vector(0.557914785, 0, -0.829898242)))
linearpattern9 = body.newObject("PartDesign::LinearPattern", "LinearPattern008")
linearpattern9.Originals = [groove]
linearpattern9.Direction = (datumline8, [""])
linearpattern9.Mode = "offset"
linearpattern9.Offset = 71.695537
linearpattern9.Occurrences = 2
body.Tip = linearpattern9
doc.recompute()

datumline9 = body.newObject("PartDesign::Line", "DatumLine008")
datumline9.Placement = App.Placement(App.Vector(0, 0, 0), App.Rotation(App.Vector(0, 0, 1), App.Vector(0.995102225, 0, -0.098851214)))
linearpattern10 = body.newObject("PartDesign::LinearPattern", "LinearPattern009")
linearpattern10.Originals = [groove]
linearpattern10.Direction = (datumline9, [""])
linearpattern10.Mode = "offset"
linearpattern10.Offset = 75.871602
linearpattern10.Occurrences = 2
body.Tip = linearpattern10
doc.recompute()

datumline10 = body.newObject("PartDesign::Line", "DatumLine009")
datumline10.Placement = App.Placement(App.Vector(0, 0, 0), App.Rotation(App.Vector(0, 0, 1), App.Vector(0.999586929, 0, 0.028739703)))
linearpattern11 = body.newObject("PartDesign::LinearPattern", "LinearPattern010")
linearpattern11.Originals = [groove]
linearpattern11.Direction = (datumline10, [""])
linearpattern11.Mode = "offset"
linearpattern11.Offset = 86.987676
linearpattern11.Occurrences = 2
body.Tip = linearpattern11
doc.recompute()

datumline11 = body.newObject("PartDesign::Line", "DatumLine010")
datumline11.Placement = App.Placement(App.Vector(0, 0, 0), App.Rotation(App.Vector(0, 0, 1), App.Vector(0.746515264, 0, 0.66536829)))
linearpattern12 = body.newObject("PartDesign::LinearPattern", "LinearPattern011")
linearpattern12.Originals = [groove]
linearpattern12.Direction = (datumline11, [""])
linearpattern12.Mode = "offset"
linearpattern12.Offset = 116.476846
linearpattern12.Occurrences = 2
body.Tip = linearpattern12
doc.recompute()

datumline12 = body.newObject("PartDesign::Line", "DatumLine011")
datumline12.Placement = App.Placement(App.Vector(0, 0, 0), App.Rotation(App.Vector(0, 0, 1), App.Vector(0.585349745, 0, 0.810780905)))
linearpattern13 = body.newObject("PartDesign::LinearPattern", "LinearPattern012")
linearpattern13.Originals = [groove]
linearpattern13.Direction = (datumline12, [""])
linearpattern13.Mode = "offset"
linearpattern13.Offset = 95.586859
linearpattern13.Occurrences = 2
body.Tip = linearpattern13
doc.recompute()

datumline13 = body.newObject("PartDesign::Line", "DatumLine012")
datumline13.Placement = App.Placement(App.Vector(0, 0, 0), App.Rotation(App.Vector(0, 0, 1), App.Vector(0.395018641, 0, 0.918673105)))
linearpattern14 = body.newObject("PartDesign::LinearPattern", "LinearPattern013")
linearpattern14.Originals = [groove]
linearpattern14.Direction = (datumline13, [""])
linearpattern14.Mode = "offset"
linearpattern14.Offset = 78.355147
linearpattern14.Occurrences = 2
body.Tip = linearpattern14
doc.recompute()

datumline14 = body.newObject("PartDesign::Line", "DatumLine013")
datumline14.Placement = App.Placement(App.Vector(0, 0, 0), App.Rotation(App.Vector(0, 0, 1), App.Vector(0.511601276, 0, 0.859222983)))
linearpattern15 = body.newObject("PartDesign::LinearPattern", "LinearPattern014")
linearpattern15.Originals = [groove]
linearpattern15.Direction = (datumline14, [""])
linearpattern15.Mode = "offset"
linearpattern15.Offset = 60.499739
linearpattern15.Occurrences = 2
body.Tip = linearpattern15
doc.recompute()

datumline15 = body.newObject("PartDesign::Line", "DatumLine014")
datumline15.Placement = App.Placement(App.Vector(0, 0, 0), App.Rotation(App.Vector(0, 0, 1), App.Vector(0.641807763, 0, 0.766865565)))
linearpattern16 = body.newObject("PartDesign::LinearPattern", "LinearPattern015")
linearpattern16.Originals = [groove]
linearpattern16.Direction = (datumline15, [""])
linearpattern16.Mode = "offset"
linearpattern16.Offset = 48.225879
linearpattern16.Occurrences = 2
body.Tip = linearpattern16
doc.recompute()

datumline16 = body.newObject("PartDesign::Line", "DatumLine015")
datumline16.Placement = App.Placement(App.Vector(0, 0, 0), App.Rotation(App.Vector(0, 0, 1), App.Vector(0.876702173, 0, 0.481033575)))
linearpattern17 = body.newObject("PartDesign::LinearPattern", "LinearPattern016")
linearpattern17.Originals = [groove]
linearpattern17.Direction = (datumline16, [""])
linearpattern17.Mode = "offset"
linearpattern17.Offset = 35.304741
linearpattern17.Occurrences = 2
body.Tip = linearpattern17
doc.recompute()

linearpattern18 = body.newObject("PartDesign::LinearPattern", "LinearPattern017")
linearpattern18.Originals = [groove]
linearpattern18.Direction = (doc.getObject("X_Axis"), [""])
linearpattern18.Mode = "offset"
linearpattern18.Offset = 32
linearpattern18.Occurrences = 2
body.Tip = linearpattern18
doc.recompute()

datumline17 = body.newObject("PartDesign::Line", "DatumLine016")
datumline17.Placement = App.Placement(App.Vector(0, 0, 0), App.Rotation(App.Vector(0, 0, 1), App.Vector(0.987813392, 0, -0.155642866)))
linearpattern19 = body.newObject("PartDesign::LinearPattern", "LinearPattern018")
linearpattern19.Originals = [groove]
linearpattern19.Direction = (datumline17, [""])
linearpattern19.Mode = "offset"
linearpattern19.Offset = 48.187239
linearpattern19.Occurrences = 2
body.Tip = linearpattern19

# Sketch on YZ plane
sketch25 = body.newObject("Sketcher::SketchObject", "Sketch024")
sketch25.AttachmentSupport = (doc.getObject("YZ_Plane"), [""])
sketch25.MapMode = "FlatFace"
sketch25.AttachmentOffset = App.Placement(App.Vector(0, 0, -8), App.Rotation())
sketch25.addGeometry([
    Part.LineSegment(App.Vector(30, 25, 0), App.Vector(0, 25, 0)),  # 0
    Part.LineSegment(App.Vector(0, 25, 0), App.Vector(0, 23.475, 0)),  # 1
    Part.LineSegment(App.Vector(0, 23.475, 0), App.Vector(0.05, 23.525, 0)),  # 2
    Part.LineSegment(App.Vector(0.05, 23.525, 0), App.Vector(30, 23.525, 0)),  # 3
    Part.LineSegment(App.Vector(30, 23.525, 0), App.Vector(30, 25, 0)),  # 4
], False)
sketch25.addGeometry(Part.LineSegment(App.Vector(0, 25, 0), App.Vector(30, 25, 0)), True)  # axis
sketch25.addConstraint([
    Sketcher.Constraint("Coincident", 0, 2, 1, 1),
    Sketcher.Constraint("Coincident", 1, 2, 2, 1),
    Sketcher.Constraint("Coincident", 2, 2, 3, 1),
    Sketcher.Constraint("Coincident", 3, 2, 4, 1),
    Sketcher.Constraint("Coincident", 4, 2, 0, 1),
    Sketcher.Constraint("Horizontal", 0),
    Sketcher.Constraint("Vertical", 1),
    Sketcher.Constraint("Horizontal", 3),
    Sketcher.Constraint("Vertical", 4),
    Sketcher.Constraint("Horizontal", 5),
    Sketcher.Constraint("Coincident", 5, 1, 0, 2),
    Sketcher.Constraint("PointOnObject", 0, 2, -2),
    Sketcher.Constraint("Vertical", 3, 2, 5, 2),
    Sketcher.Constraint("DistanceX", 0, 2, 0, 1, 30.0),
    Sketcher.Constraint("Angle", 2, Q("45 deg")),
    Sketcher.Constraint("DistanceY", -1, 1, 0, 2, 25.0),
    Sketcher.Constraint("DistanceX", 3, 1, 3, 2, 29.95),
    Sketcher.Constraint("DistanceY", 1, 2, 1, 1, 1.525),
])
groove2 = body.newObject("PartDesign::Groove", "Groove001")
groove2.Profile = sketch25
groove2.ReferenceAxis = (sketch25, ["Axis0"])
groove2.Angle = 360

doc.recompute()
